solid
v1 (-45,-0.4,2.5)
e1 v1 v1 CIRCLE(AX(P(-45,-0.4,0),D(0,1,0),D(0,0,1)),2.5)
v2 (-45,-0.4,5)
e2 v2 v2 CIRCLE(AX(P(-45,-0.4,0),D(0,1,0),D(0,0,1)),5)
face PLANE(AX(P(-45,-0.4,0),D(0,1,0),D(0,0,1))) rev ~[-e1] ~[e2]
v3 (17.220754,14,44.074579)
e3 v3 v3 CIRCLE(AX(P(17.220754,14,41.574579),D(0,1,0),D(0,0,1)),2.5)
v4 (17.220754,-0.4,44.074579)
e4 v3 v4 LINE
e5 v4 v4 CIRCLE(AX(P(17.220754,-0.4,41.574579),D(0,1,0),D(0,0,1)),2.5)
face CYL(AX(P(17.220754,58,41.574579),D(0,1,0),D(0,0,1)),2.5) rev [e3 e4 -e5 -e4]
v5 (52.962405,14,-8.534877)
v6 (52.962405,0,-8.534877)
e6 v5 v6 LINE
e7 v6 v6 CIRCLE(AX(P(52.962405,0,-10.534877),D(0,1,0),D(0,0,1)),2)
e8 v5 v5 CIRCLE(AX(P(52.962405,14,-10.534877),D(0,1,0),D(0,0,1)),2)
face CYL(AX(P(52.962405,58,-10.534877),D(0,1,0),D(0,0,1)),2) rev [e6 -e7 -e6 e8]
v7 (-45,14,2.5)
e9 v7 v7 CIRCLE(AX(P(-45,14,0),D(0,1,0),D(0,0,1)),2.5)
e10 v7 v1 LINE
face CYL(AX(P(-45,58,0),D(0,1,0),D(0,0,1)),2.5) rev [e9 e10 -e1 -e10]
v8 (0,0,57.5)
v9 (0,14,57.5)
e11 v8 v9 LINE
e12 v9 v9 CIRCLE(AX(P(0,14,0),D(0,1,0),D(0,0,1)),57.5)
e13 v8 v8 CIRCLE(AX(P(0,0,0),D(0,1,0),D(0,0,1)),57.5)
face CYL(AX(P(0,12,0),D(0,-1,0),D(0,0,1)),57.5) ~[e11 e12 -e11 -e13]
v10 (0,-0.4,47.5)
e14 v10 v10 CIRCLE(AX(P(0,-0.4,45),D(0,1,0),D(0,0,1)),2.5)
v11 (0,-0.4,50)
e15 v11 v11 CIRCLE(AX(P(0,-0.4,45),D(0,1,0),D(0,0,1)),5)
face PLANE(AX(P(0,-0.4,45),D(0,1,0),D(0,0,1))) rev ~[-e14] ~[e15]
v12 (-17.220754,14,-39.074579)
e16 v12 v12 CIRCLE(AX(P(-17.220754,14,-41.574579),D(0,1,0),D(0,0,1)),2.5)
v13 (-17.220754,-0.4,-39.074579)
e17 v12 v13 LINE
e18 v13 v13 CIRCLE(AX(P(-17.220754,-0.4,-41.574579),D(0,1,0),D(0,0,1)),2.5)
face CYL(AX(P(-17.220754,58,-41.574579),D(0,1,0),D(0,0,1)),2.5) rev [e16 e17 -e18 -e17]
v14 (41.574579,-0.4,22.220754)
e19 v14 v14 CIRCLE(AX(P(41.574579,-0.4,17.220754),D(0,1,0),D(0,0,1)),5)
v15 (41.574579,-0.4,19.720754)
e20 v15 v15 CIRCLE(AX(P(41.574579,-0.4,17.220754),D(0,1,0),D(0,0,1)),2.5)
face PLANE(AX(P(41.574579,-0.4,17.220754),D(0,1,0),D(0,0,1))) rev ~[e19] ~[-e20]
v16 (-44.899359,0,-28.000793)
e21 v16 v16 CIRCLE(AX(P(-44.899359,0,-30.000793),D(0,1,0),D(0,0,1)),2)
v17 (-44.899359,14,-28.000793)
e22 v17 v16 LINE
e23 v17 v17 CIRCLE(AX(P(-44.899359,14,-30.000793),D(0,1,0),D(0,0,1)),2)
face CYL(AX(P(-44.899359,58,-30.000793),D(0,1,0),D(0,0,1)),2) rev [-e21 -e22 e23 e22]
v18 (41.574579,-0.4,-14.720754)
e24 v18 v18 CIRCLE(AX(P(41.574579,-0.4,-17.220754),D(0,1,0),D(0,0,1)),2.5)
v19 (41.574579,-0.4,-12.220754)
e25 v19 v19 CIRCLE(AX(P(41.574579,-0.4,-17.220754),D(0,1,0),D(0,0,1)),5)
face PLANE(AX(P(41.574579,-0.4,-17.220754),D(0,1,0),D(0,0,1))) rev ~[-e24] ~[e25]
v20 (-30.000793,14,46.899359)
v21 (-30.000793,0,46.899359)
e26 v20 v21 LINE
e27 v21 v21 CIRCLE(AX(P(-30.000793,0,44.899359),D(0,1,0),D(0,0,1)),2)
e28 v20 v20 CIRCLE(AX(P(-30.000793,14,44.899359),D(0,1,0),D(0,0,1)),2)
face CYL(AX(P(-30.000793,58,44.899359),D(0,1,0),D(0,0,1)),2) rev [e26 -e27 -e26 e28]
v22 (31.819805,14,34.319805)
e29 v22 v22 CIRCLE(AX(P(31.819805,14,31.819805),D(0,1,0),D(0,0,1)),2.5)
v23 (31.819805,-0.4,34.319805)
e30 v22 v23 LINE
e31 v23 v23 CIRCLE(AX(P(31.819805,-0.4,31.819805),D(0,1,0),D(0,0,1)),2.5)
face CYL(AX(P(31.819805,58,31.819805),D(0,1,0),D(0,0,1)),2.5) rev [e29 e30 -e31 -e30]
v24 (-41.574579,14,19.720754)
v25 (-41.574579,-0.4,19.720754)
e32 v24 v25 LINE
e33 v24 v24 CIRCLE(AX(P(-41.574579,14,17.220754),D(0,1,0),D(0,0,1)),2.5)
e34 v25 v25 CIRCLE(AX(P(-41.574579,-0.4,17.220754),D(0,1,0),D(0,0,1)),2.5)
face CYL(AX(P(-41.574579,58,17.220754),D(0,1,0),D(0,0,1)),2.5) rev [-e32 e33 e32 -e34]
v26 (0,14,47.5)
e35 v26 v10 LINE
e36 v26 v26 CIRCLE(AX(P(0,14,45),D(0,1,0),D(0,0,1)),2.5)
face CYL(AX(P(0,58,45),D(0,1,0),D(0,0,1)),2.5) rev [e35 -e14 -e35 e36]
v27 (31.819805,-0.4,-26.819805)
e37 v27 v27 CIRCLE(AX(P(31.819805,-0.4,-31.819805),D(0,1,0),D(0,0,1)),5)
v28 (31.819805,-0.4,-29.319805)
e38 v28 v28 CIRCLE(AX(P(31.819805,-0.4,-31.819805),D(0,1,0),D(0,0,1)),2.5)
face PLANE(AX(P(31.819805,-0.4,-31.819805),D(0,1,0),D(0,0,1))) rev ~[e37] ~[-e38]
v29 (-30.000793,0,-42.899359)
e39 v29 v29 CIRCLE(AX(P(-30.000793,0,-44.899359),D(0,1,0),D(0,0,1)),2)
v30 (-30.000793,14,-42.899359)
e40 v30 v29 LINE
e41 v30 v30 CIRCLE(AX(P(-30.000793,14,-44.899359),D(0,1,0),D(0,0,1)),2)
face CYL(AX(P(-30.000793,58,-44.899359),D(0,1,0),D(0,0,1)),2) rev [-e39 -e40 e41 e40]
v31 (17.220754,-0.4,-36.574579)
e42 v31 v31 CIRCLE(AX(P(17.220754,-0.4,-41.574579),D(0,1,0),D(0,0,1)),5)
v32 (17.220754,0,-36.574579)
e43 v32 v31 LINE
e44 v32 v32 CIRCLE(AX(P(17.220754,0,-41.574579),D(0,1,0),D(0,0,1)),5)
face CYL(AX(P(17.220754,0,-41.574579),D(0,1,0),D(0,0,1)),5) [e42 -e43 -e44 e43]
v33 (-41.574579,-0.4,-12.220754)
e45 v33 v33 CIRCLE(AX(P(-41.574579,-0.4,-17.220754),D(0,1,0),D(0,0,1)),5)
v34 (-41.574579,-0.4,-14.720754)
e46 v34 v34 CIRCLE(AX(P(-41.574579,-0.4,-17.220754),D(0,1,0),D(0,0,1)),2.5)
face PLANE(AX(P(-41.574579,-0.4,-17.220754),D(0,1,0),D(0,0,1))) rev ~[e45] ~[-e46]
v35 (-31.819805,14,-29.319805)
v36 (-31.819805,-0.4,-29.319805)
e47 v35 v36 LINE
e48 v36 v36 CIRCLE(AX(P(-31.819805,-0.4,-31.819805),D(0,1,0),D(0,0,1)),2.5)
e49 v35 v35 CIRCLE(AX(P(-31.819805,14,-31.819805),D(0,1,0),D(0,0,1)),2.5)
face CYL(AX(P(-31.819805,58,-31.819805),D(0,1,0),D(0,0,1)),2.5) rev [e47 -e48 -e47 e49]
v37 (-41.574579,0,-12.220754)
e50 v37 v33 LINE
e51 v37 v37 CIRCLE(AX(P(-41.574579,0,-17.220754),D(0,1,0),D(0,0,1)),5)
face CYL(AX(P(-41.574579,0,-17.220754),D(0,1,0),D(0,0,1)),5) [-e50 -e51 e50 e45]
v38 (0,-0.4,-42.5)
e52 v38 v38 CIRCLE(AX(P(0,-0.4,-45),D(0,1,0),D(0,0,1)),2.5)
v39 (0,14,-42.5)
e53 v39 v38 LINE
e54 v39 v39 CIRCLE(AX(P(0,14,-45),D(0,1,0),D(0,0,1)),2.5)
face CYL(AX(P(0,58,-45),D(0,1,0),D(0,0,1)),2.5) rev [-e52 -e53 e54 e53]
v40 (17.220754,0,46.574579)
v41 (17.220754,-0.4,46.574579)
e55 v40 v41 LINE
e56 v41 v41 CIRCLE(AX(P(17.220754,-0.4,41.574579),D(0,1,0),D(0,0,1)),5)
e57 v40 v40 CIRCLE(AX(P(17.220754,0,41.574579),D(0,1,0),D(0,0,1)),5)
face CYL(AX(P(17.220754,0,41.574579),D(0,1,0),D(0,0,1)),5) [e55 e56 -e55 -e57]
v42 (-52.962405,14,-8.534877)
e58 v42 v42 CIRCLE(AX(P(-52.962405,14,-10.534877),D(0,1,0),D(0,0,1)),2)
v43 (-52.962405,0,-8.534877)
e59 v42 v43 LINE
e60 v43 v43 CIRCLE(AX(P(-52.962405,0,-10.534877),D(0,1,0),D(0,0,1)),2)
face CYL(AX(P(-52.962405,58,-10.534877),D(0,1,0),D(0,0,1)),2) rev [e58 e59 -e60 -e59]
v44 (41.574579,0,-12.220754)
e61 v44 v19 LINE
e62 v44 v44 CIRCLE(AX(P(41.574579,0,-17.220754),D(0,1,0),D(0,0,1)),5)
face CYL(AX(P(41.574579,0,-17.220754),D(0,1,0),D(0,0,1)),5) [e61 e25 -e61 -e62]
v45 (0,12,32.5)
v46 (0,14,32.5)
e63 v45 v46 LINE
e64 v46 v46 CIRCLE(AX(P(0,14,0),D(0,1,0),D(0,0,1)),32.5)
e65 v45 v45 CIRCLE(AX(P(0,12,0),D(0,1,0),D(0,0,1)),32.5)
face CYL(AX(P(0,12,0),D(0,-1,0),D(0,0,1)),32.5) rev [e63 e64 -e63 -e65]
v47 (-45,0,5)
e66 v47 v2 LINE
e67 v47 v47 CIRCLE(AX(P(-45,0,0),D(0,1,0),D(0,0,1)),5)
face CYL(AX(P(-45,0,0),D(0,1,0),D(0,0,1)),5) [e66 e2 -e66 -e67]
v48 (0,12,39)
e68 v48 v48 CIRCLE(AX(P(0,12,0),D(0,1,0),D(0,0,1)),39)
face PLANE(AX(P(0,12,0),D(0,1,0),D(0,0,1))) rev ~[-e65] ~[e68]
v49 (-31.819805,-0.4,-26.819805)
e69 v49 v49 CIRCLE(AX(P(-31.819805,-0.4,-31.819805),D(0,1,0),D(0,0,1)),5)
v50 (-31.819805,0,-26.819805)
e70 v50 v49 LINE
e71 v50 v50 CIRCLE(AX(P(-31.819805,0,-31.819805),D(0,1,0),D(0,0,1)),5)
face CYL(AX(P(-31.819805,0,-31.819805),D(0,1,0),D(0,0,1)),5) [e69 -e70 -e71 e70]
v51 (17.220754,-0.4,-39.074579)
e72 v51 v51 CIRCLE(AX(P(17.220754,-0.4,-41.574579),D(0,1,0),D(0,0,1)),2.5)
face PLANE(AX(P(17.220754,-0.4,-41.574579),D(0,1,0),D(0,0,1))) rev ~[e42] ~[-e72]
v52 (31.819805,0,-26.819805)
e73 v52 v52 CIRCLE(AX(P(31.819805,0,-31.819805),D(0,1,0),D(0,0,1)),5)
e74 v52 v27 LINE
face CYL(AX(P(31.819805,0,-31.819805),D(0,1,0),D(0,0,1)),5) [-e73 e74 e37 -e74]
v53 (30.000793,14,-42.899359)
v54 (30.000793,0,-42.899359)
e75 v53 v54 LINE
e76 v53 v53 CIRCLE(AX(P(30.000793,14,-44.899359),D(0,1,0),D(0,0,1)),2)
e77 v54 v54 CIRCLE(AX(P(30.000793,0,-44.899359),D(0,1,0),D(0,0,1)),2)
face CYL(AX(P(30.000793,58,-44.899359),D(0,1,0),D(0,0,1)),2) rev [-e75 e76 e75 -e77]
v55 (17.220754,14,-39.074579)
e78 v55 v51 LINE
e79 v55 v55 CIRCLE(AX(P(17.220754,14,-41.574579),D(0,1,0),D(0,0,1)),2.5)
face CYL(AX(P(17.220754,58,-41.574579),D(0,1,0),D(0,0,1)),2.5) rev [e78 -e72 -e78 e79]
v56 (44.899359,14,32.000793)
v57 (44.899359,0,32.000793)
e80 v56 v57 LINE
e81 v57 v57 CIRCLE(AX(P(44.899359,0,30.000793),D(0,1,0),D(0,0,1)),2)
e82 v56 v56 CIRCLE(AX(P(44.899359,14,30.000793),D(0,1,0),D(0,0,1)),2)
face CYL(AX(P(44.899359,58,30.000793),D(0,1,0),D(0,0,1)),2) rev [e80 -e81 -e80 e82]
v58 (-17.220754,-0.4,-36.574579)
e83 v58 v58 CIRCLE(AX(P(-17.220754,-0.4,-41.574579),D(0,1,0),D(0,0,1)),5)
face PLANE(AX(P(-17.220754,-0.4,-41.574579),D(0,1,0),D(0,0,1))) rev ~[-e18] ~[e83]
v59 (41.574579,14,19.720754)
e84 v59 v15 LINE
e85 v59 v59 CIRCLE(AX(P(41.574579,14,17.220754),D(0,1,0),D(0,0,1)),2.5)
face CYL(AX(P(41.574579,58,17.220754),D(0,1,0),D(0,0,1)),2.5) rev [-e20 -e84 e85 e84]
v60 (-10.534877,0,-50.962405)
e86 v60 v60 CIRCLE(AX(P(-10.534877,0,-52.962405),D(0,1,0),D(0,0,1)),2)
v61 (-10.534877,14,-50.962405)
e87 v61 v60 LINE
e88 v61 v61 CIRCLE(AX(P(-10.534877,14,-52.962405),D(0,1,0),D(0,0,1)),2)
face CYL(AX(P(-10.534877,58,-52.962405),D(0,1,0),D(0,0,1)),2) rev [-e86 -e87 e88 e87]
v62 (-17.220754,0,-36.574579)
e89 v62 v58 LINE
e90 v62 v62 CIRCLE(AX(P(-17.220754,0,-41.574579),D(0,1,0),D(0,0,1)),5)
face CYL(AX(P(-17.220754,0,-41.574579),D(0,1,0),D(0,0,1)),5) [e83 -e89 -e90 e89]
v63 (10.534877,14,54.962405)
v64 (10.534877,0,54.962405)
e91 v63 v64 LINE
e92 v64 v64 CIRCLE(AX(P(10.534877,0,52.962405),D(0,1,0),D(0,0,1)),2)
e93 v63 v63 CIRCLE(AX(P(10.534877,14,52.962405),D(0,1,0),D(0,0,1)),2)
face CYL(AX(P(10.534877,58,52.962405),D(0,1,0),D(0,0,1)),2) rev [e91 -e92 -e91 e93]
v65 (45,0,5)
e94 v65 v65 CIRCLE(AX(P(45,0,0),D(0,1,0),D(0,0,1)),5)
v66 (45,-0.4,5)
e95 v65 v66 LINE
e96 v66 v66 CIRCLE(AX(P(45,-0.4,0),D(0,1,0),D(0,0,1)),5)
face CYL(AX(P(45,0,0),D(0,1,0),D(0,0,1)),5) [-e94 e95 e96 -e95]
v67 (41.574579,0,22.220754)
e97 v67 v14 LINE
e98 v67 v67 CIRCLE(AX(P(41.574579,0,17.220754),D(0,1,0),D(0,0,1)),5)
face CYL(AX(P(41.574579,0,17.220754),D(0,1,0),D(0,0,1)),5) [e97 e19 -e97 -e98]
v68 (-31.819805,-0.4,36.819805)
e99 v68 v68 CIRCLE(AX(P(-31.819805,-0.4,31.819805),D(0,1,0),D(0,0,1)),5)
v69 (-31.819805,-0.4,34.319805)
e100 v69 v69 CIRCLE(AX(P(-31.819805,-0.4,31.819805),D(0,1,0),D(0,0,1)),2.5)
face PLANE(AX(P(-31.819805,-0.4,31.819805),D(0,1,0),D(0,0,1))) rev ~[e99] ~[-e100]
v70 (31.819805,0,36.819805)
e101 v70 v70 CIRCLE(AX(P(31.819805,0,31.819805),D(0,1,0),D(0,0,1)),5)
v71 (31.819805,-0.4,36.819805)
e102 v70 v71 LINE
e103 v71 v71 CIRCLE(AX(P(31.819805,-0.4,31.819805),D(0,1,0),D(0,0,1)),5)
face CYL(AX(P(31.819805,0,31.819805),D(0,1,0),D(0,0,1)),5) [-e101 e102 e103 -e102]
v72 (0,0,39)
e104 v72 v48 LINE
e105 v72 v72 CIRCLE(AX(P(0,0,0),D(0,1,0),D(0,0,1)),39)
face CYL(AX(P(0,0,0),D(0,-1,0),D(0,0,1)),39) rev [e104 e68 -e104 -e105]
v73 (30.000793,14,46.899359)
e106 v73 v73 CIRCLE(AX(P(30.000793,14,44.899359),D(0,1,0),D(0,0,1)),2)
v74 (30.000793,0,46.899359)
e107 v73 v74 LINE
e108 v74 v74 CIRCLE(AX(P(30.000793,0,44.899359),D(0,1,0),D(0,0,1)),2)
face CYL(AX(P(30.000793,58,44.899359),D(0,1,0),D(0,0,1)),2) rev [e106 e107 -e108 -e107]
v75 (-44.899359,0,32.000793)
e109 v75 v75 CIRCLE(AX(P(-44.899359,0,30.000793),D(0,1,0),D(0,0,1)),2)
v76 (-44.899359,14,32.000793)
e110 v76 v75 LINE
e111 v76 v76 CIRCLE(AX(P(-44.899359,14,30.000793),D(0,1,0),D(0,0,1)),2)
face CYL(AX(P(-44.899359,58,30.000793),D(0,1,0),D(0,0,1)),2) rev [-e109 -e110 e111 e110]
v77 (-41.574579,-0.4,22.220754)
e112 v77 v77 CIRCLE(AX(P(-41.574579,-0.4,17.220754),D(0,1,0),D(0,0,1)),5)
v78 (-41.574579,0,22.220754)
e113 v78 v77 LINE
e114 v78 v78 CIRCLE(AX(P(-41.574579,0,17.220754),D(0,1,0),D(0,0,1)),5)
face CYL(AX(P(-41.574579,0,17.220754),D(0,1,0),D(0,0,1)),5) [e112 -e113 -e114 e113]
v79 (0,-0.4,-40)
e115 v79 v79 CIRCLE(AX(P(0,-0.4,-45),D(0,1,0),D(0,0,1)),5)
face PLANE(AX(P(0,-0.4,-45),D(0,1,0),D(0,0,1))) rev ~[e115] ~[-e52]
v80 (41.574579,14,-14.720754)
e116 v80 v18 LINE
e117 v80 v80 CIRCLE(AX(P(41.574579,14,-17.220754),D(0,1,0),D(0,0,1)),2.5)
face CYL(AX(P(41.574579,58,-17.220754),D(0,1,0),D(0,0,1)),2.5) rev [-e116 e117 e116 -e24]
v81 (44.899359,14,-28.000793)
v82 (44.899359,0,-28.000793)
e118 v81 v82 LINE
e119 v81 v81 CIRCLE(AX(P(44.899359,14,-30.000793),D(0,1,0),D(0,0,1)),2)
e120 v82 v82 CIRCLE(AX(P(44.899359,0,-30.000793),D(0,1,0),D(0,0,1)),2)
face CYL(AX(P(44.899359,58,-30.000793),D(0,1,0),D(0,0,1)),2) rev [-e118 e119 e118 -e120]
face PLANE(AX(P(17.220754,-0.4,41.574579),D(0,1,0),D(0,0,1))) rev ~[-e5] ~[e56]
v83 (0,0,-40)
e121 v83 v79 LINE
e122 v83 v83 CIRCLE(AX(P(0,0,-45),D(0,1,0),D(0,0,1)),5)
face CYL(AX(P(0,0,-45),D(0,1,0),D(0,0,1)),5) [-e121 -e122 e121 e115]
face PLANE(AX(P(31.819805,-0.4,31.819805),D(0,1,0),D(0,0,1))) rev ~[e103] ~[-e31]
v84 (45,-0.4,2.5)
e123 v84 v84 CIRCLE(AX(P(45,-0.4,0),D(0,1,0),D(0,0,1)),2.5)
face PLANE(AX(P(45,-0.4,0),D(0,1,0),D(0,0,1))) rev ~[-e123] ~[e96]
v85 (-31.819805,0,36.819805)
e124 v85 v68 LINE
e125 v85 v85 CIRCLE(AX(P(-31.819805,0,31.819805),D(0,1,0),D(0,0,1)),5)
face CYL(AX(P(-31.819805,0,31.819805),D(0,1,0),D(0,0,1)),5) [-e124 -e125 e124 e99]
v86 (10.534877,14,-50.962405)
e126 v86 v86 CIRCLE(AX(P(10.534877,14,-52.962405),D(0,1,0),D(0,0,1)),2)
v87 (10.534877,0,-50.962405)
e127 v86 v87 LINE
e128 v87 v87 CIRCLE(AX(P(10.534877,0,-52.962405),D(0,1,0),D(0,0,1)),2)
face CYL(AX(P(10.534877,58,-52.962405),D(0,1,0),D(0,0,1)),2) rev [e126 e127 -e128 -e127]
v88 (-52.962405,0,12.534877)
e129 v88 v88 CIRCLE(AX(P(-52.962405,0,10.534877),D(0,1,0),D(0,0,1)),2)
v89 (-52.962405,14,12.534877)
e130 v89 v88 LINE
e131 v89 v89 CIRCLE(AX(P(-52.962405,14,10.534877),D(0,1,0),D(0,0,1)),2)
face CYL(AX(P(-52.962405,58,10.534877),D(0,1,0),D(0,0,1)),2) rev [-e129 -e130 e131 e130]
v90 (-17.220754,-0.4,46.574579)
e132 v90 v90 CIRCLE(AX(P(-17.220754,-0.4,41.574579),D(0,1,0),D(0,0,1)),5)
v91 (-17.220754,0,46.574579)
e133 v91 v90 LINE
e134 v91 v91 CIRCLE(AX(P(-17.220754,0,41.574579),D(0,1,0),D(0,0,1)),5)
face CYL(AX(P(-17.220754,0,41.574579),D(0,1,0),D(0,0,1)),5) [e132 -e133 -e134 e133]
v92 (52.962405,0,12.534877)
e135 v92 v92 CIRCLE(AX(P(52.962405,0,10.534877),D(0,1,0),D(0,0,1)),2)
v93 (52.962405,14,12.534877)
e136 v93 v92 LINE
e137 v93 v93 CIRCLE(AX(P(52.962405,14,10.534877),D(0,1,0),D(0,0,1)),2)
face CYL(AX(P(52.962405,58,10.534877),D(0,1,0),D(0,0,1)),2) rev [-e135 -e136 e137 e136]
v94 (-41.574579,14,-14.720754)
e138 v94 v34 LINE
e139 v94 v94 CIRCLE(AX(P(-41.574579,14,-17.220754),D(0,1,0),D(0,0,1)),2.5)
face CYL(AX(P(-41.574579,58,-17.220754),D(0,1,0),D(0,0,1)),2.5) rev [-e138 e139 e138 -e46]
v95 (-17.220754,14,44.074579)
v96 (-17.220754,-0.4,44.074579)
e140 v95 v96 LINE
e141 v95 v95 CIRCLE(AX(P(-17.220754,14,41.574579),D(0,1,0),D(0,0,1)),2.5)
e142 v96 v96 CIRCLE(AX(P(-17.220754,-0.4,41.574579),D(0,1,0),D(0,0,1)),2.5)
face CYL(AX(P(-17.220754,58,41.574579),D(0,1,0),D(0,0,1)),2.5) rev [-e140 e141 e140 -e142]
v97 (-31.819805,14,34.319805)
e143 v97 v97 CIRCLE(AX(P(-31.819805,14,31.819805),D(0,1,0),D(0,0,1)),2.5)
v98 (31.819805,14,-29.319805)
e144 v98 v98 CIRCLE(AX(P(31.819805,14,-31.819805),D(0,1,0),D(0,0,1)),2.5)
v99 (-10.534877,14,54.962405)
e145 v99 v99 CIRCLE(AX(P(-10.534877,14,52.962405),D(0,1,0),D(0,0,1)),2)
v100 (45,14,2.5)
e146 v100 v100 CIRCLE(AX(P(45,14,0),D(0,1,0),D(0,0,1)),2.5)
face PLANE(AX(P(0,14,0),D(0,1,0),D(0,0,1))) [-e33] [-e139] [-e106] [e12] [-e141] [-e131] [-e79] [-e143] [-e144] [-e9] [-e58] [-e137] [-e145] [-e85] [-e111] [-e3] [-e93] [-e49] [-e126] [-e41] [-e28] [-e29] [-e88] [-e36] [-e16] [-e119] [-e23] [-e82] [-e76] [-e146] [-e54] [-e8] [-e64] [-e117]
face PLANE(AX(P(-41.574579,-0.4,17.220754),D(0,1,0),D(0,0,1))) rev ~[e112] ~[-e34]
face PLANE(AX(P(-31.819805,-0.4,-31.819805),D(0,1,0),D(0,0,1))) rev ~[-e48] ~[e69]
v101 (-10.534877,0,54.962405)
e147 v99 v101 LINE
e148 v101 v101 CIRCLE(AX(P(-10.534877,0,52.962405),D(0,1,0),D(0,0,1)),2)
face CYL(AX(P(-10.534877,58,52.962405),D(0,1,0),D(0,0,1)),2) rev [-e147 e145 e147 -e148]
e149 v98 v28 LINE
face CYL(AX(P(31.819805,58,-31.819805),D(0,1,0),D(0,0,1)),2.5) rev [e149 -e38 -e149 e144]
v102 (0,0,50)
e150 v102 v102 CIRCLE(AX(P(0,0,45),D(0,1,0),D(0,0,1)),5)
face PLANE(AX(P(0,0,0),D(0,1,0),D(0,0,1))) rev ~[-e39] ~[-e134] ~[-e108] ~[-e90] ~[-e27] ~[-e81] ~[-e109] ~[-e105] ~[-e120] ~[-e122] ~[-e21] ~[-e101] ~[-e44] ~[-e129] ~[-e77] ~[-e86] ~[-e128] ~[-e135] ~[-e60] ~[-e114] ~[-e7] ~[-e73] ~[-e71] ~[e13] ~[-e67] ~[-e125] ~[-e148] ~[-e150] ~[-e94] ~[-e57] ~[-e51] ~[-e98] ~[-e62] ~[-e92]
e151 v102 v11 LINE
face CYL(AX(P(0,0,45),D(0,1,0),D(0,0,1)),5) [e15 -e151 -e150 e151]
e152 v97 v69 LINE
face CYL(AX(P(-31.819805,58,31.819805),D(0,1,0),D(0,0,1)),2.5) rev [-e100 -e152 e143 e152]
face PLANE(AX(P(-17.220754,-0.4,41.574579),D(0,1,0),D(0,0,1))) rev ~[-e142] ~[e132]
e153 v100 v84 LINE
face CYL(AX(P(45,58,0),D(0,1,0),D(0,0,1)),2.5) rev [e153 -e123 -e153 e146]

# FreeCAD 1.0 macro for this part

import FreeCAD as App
import Part
import Sketcher
Q = App.Units.Quantity

doc = App.newDocument("Part")
params = doc.addObject("Spreadsheet::Sheet", "Params")
for row, (alias, value) in enumerate([
    ("sketch1_diameter", "115 mm"),
    ("sketch1_diameter2", "4 mm"),
    ("sketch1_diameter3", "78 mm"),
    ("pad1_length", "12 mm"),
    ("sketch2_diameter", "5 mm"),
    ("pocket1_length", "10 mm"),
    ("sketch3_diameter", "10 mm"),
    ("sketch3_diameter2", "5 mm"),
    ("pad2_length", "0.4 mm"),
    ("sketch4_diameter", "115 mm"),
    ("sketch4_diameter2", "65 mm"),
    ("pad3_length", "2 mm"),
    ("sketch5_diameter", "5 mm"),
    ("sketch5_diameter2", "4 mm"),
    ("pocket2_length", "58 mm"),
], start=1):
    params.set(f"A{row}", alias)
    params.set(f"B{row}", "=" + value)
    params.setAlias(f"B{row}", alias)

body = doc.addObject("PartDesign::Body", "Body")

# Sketch on XZ plane
sketch1 = body.newObject("Sketcher::SketchObject", "Sketch")
sketch1.AttachmentSupport = (doc.getObject("XZ_Plane"), [""])
sketch1.MapMode = "FlatFace"
sketch1.addGeometry([
    Part.Circle(App.Vector(0, 0, 0), App.Vector(0, 0, 1), 57.5),  # 0
    Part.Circle(App.Vector(-44.899359, -30.000793, 0), App.Vector(0, 0, 1), 2),  # 1
    Part.Circle(App.Vector(-30.000793, -44.899359, 0), App.Vector(0, 0, 1), 2),  # 2
    Part.Circle(App.Vector(-52.962405, -10.534877, 0), App.Vector(0, 0, 1), 2),  # 3
    Part.Circle(App.Vector(-10.534877, -52.962405, 0), App.Vector(0, 0, 1), 2),  # 4
    Part.Circle(App.Vector(0, 0, 0), App.Vector(0, 0, 1), 39),  # 5
    Part.Circle(App.Vector(-52.962405, 10.534877, 0), App.Vector(0, 0, 1), 2),  # 6
    Part.Circle(App.Vector(-44.899359, 30.000793, 0), App.Vector(0, 0, 1), 2),  # 7
    Part.Circle(App.Vector(-30.000793, 44.899359, 0), App.Vector(0, 0, 1), 2),  # 8
    Part.Circle(App.Vector(-10.534877, 52.962405, 0), App.Vector(0, 0, 1), 2),  # 9
    Part.Circle(App.Vector(10.534877, -52.962405, 0), App.Vector(0, 0, 1), 2),  # 10
    Part.Circle(App.Vector(30.000793, -44.899359, 0), App.Vector(0, 0, 1), 2),  # 11
    Part.Circle(App.Vector(44.899359, -30.000793, 0), App.Vector(0, 0, 1), 2),  # 12
    Part.Circle(App.Vector(52.962405, -10.534877, 0), App.Vector(0, 0, 1), 2),  # 13
    Part.Circle(App.Vector(10.534877, 52.962405, 0), App.Vector(0, 0, 1), 2),  # 14
    Part.Circle(App.Vector(52.962405, 10.534877, 0), App.Vector(0, 0, 1), 2),  # 15
    Part.Circle(App.Vector(30.000793, 44.899359, 0), App.Vector(0, 0, 1), 2),  # 16
    Part.Circle(App.Vector(44.899359, 30.000793, 0), App.Vector(0, 0, 1), 2),  # 17
], False)
sketch1.addConstraint([
    Sketcher.Constraint("Coincident", 0, 3, -1, 1),
    Sketcher.Constraint("Coincident", 5, 3, -1, 1),
    Sketcher.Constraint("Equal", 1, 2),
    Sketcher.Constraint("Equal", 2, 3),
    Sketcher.Constraint("Equal", 3, 4),
    Sketcher.Constraint("Equal", 4, 6),
    Sketcher.Constraint("Equal", 6, 7),
    Sketcher.Constraint("Equal", 7, 8),
    Sketcher.Constraint("Equal", 8, 9),
    Sketcher.Constraint("Equal", 9, 10),
    Sketcher.Constraint("Equal", 10, 11),
    Sketcher.Constraint("Equal", 11, 12),
    Sketcher.Constraint("Equal", 12, 13),
    Sketcher.Constraint("Equal", 13, 14),
    Sketcher.Constraint("Equal", 14, 15),
    Sketcher.Constraint("Equal", 15, 16),
    Sketcher.Constraint("Equal", 16, 17),
    Sketcher.Constraint("Symmetric", 9, 3, 10, 3, -1, 1),
    Sketcher.Constraint("Symmetric", 8, 3, 11, 3, -1, 1),
    Sketcher.Constraint("Symmetric", 7, 3, 12, 3, -1, 1),
    Sketcher.Constraint("Symmetric", 6, 3, 13, 3, -1, 1),
    Sketcher.Constraint("Symmetric", 4, 3, 14, 3, -1, 1),
    Sketcher.Constraint("Symmetric", 3, 3, 15, 3, -1, 1),
    Sketcher.Constraint("Symmetric", 2, 3, 16, 3, -1, 1),
    Sketcher.Constraint("Symmetric", 1, 3, 17, 3, -1, 1),
    Sketcher.Constraint("Symmetric", 4, 3, 10, 3, -2),
    Sketcher.Constraint("Symmetric", 2, 3, 11, 3, -2),
    Sketcher.Constraint("Symmetric", 1, 3, 12, 3, -2),
    Sketcher.Constraint("Symmetric", 3, 3, 13, 3, -2),
    Sketcher.Constraint("Diameter", 0, Q("115 mm")),
    Sketcher.Constraint("Diameter", 1, Q("4 mm")),
    Sketcher.Constraint("Diameter", 5, Q("78 mm")),
    Sketcher.Constraint("DistanceX", 1, 3, -1, 1, Q("44.899359 mm")),
    Sketcher.Constraint("DistanceY", 2, 3, -1, 1, Q("44.899359 mm")),
    Sketcher.Constraint("DistanceY", 2, 3, 3, 3, Q("34.364482 mm")),
    Sketcher.Constraint("DistanceX", 1, 3, 4, 3, Q("34.364482 mm")),
    Sketcher.Constraint("DistanceY", 1, 3, 6, 3, Q("40.53567 mm")),
    Sketcher.Constraint("DistanceX", 2, 3, 10, 3, Q("40.53567 mm")),
    Sketcher.Constraint("DistanceX", 3, 3, -1, 1, Q("52.962405 mm")),
    Sketcher.Constraint("DistanceY", 4, 3, -1, 1, Q("52.962405 mm")),
])
sketch1.setExpression("Constraints[29]", "Params.sketch1_diameter")
sketch1.setExpression("Constraints[30]", "Params.sketch1_diameter2")
sketch1.setExpression("Constraints[31]", "Params.sketch1_diameter3")
pad1 = body.newObject("PartDesign::Pad", "Pad")
pad1.Profile = sketch1
pad1.setExpression("Length", "Params.pad1_length")
pad1.Reversed = True

# Sketch on XZ plane
sketch2 = body.newObject("Sketcher::SketchObject", "Sketch001")
sketch2.AttachmentSupport = (doc.getObject("XZ_Plane"), [""])
sketch2.MapMode = "FlatFace"
sketch2.AttachmentOffset = App.Placement(App.Vector(0, 0, -12), App.Rotation())
sketch2.addGeometry([
    Part.Circle(App.Vector(0, -45, 0), App.Vector(0, 0, 1), 2.5),  # 0
    Part.Circle(App.Vector(17.220754, -41.574579, 0), App.Vector(0, 0, 1), 2.5),  # 1
    Part.Circle(App.Vector(31.819805, -31.819805, 0), App.Vector(0, 0, 1), 2.5),  # 2
    Part.Circle(App.Vector(41.574579, -17.220754, 0), App.Vector(0, 0, 1), 2.5),  # 3
    Part.Circle(App.Vector(45, 0, 0), App.Vector(0, 0, 1), 2.5),  # 4
    Part.Circle(App.Vector(41.574579, 17.220754, 0), App.Vector(0, 0, 1), 2.5),  # 5
    Part.Circle(App.Vector(31.819805, 31.819805, 0), App.Vector(0, 0, 1), 2.5),  # 6
    Part.Circle(App.Vector(17.220754, 41.574579, 0), App.Vector(0, 0, 1), 2.5),  # 7
    Part.Circle(App.Vector(0, 45, 0), App.Vector(0, 0, 1), 2.5),  # 8
    Part.Circle(App.Vector(-17.220754, 41.574579, 0), App.Vector(0, 0, 1), 2.5),  # 9
    Part.Circle(App.Vector(-31.819805, 31.819805, 0), App.Vector(0, 0, 1), 2.5),  # 10
    Part.Circle(App.Vector(-41.574579, 17.220754, 0), App.Vector(0, 0, 1), 2.5),  # 11
    Part.Circle(App.Vector(-45, 0, 0), App.Vector(0, 0, 1), 2.5),  # 12
    Part.Circle(App.Vector(-41.574579, -17.220754, 0), App.Vector(0, 0, 1), 2.5),  # 13
    Part.Circle(App.Vector(-31.819805, -31.819805, 0), App.Vector(0, 0, 1), 2.5),  # 14
    Part.Circle(App.Vector(-17.220754, -41.574579, 0), App.Vector(0, 0, 1), 2.5),  # 15
], False)
sketch2.addConstraint([
    Sketcher.Constraint("Equal", 0, 1),
    Sketcher.Constraint("Equal", 1, 2),
    Sketcher.Constraint("Equal", 2, 3),
    Sketcher.Constraint("Equal", 3, 4),
    Sketcher.Constraint("Equal", 4, 5),
    Sketcher.Constraint("Equal", 5, 6),
    Sketcher.Constraint("Equal", 6, 7),
    Sketcher.Constraint("Equal", 7, 8),
    Sketcher.Constraint("Equal", 8, 9),
    Sketcher.Constraint("Equal", 9, 10),
    Sketcher.Constraint("Equal", 10, 11),
    Sketcher.Constraint("Equal", 11, 12),
    Sketcher.Constraint("Equal", 12, 13),
    Sketcher.Constraint("Equal", 13, 14),
    Sketcher.Constraint("Equal", 14, 15),
    Sketcher.Constraint("Symmetric", 0, 3, 8, 3, -1, 1),
    Sketcher.Constraint("Symmetric", 1, 3, 9, 3, -1, 1),
    Sketcher.Constraint("Symmetric", 2, 3, 10, 3, -1, 1),
    Sketcher.Constraint("Symmetric", 3, 3, 11, 3, -1, 1),
    Sketcher.Constraint("Symmetric", 4, 3, 12, 3, -1, 1),
    Sketcher.Constraint("Symmetric", 5, 3, 13, 3, -1, 1),
    Sketcher.Constraint("Symmetric", 6, 3, 14, 3, -1, 1),
    Sketcher.Constraint("Symmetric", 7, 3, 15, 3, -1, 1),
    Sketcher.Constraint("Symmetric", 7, 3, 9, 3, -2),
    Sketcher.Constraint("Symmetric", 6, 3, 10, 3, -2),
    Sketcher.Constraint("Symmetric", 5, 3, 11, 3, -2),
    Sketcher.Constraint("PointOnObject", 0, 3, -2),
    Sketcher.Constraint("PointOnObject", 4, 3, -1),
    Sketcher.Constraint("Diameter", 0, Q("5 mm")),
    Sketcher.Constraint("DistanceY", 0, 3, -1, 1, Q("45 mm")),
    Sketcher.Constraint("DistanceX", -1, 1, 4, 3, Q("45 mm")),
    Sketcher.Constraint("DistanceY", 1, 3, -1, 1, Q("41.574579 mm")),
    Sketcher.Constraint("DistanceX", -1, 1, 3, 3, Q("41.574579 mm")),
    Sketcher.Constraint("DistanceX", 1, 3, 2, 3, Q("14.599051 mm")),
    Sketcher.Constraint("DistanceY", 2, 3, 3, 3, Q("14.599051 mm")),
    Sketcher.Constraint("DistanceY", 3, 3, 5, 3, Q("34.441509 mm")),
    Sketcher.Constraint("DistanceX", 9, 3, 7, 3, Q("34.441509 mm")),
])
sketch2.setExpression("Constraints[28]", "Params.sketch2_diameter")
pocket1 = body.newObject("PartDesign::Pocket", "Pocket")
pocket1.Profile = sketch2
pocket1.setExpression("Length", "Params.pocket1_length")
pocket1.Reversed = True

# Sketch on XZ plane
sketch3 = body.newObject("Sketcher::SketchObject", "Sketch002")
sketch3.AttachmentSupport = (doc.getObject("XZ_Plane"), [""])
sketch3.MapMode = "FlatFace"
sketch3.addGeometry([
    Part.Circle(App.Vector(0, -45, 0), App.Vector(0, 0, 1), 5),  # 0
    Part.Circle(App.Vector(0, -45, 0), App.Vector(0, 0, 1), 2.5),  # 1
    Part.Circle(App.Vector(17.220754, -41.574579, 0), App.Vector(0, 0, 1), 5),  # 2
    Part.Circle(App.Vector(17.220754, -41.574579, 0), App.Vector(0, 0, 1), 2.5),  # 3
    Part.Circle(App.Vector(31.819805, -31.819805, 0), App.Vector(0, 0, 1), 5),  # 4
    Part.Circle(App.Vector(31.819805, -31.819805, 0), App.Vector(0, 0, 1), 2.5),  # 5
    Part.Circle(App.Vector(41.574579, -17.220754, 0), App.Vector(0, 0, 1), 5),  # 6
    Part.Circle(App.Vector(41.574579, -17.220754, 0), App.Vector(0, 0, 1), 2.5),  # 7
    Part.Circle(App.Vector(45, 0, 0), App.Vector(0, 0, 1), 5),  # 8
    Part.Circle(App.Vector(45, 0, 0), App.Vector(0, 0, 1), 2.5),  # 9
    Part.Circle(App.Vector(41.574579, 17.220754, 0), App.Vector(0, 0, 1), 5),  # 10
    Part.Circle(App.Vector(41.574579, 17.220754, 0), App.Vector(0, 0, 1), 2.5),  # 11
    Part.Circle(App.Vector(31.819805, 31.819805, 0), App.Vector(0, 0, 1), 5),  # 12
    Part.Circle(App.Vector(31.819805, 31.819805, 0), App.Vector(0, 0, 1), 2.5),  # 13
    Part.Circle(App.Vector(17.220754, 41.574579, 0), App.Vector(0, 0, 1), 5),  # 14
    Part.Circle(App.Vector(17.220754, 41.574579, 0), App.Vector(0, 0, 1), 2.5),  # 15
    Part.Circle(App.Vector(0, 45, 0), App.Vector(0, 0, 1), 5),  # 16
    Part.Circle(App.Vector(0, 45, 0), App.Vector(0, 0, 1), 2.5),  # 17
    Part.Circle(App.Vector(-17.220754, 41.574579, 0), App.Vector(0, 0, 1), 5),  # 18
    Part.Circle(App.Vector(-17.220754, 41.574579, 0), App.Vector(0, 0, 1), 2.5),  # 19
    Part.Circle(App.Vector(-31.819805, 31.819805, 0), App.Vector(0, 0, 1), 5),  # 20
    Part.Circle(App.Vector(-31.819805, 31.819805, 0), App.Vector(0, 0, 1), 2.5),  # 21
    Part.Circle(App.Vector(-41.574579, 17.220754, 0), App.Vector(0, 0, 1), 5),  # 22
    Part.Circle(App.Vector(-41.574579, 17.220754, 0), App.Vector(0, 0, 1), 2.5),  # 23
    Part.Circle(App.Vector(-45, 0, 0), App.Vector(0, 0, 1), 5),  # 24
    Part.Circle(App.Vector(-45, 0, 0), App.Vector(0, 0, 1), 2.5),  # 25
    Part.Circle(App.Vector(-41.574579, -17.220754, 0), App.Vector(0, 0, 1), 5),  # 26
    Part.Circle(App.Vector(-41.574579, -17.220754, 0), App.Vector(0, 0, 1), 2.5),  # 27
    Part.Circle(App.Vector(-31.819805, -31.819805, 0), App.Vector(0, 0, 1), 5),  # 28
    Part.Circle(App.Vector(-31.819805, -31.819805, 0), App.Vector(0, 0, 1), 2.5),  # 29
    Part.Circle(App.Vector(-17.220754, -41.574579, 0), App.Vector(0, 0, 1), 5),  # 30
    Part.Circle(App.Vector(-17.220754, -41.574579, 0), App.Vector(0, 0, 1), 2.5),  # 31
], False)
sketch3.addConstraint([
    Sketcher.Constraint("Coincident", 1, 3, 0, 3),
    Sketcher.Constraint("Coincident", 3, 3, 2, 3),
    Sketcher.Constraint("Coincident", 5, 3, 4, 3),
    Sketcher.Constraint("Coincident", 7, 3, 6, 3),
    Sketcher.Constraint("Coincident", 9, 3, 8, 3),
    Sketcher.Constraint("Coincident", 11, 3, 10, 3),
    Sketcher.Constraint("Coincident", 13, 3, 12, 3),
    Sketcher.Constraint("Coincident", 15, 3, 14, 3),
    Sketcher.Constraint("Coincident", 17, 3, 16, 3),
    Sketcher.Constraint("Coincident", 19, 3, 18, 3),
    Sketcher.Constraint("Coincident", 21, 3, 20, 3),
    Sketcher.Constraint("Coincident", 23, 3, 22, 3),
    Sketcher.Constraint("Coincident", 25, 3, 24, 3),
    Sketcher.Constraint("Coincident", 27, 3, 26, 3),
    Sketcher.Constraint("Coincident", 29, 3, 28, 3),
    Sketcher.Constraint("Coincident", 31, 3, 30, 3),
    Sketcher.Constraint("Equal", 0, 2),
    Sketcher.Constraint("Equal", 1, 3),
    Sketcher.Constraint("Equal", 2, 4),
    Sketcher.Constraint("Equal", 3, 5),
    Sketcher.Constraint("Equal", 4, 6),
    Sketcher.Constraint("Equal", 5, 7),
    Sketcher.Constraint("Equal", 6, 8),
    Sketcher.Constraint("Equal", 7, 9),
    Sketcher.Constraint("Equal", 8, 10),
    Sketcher.Constraint("Equal", 9, 11),
    Sketcher.Constraint("Equal", 10, 12),
    Sketcher.Constraint("Equal", 11, 13),
    Sketcher.Constraint("Equal", 12, 14),
    Sketcher.Constraint("Equal", 13, 15),
    Sketcher.Constraint("Equal", 14, 16),
    Sketcher.Constraint("Equal", 15, 17),
    Sketcher.Constraint("Equal", 16, 18),
    Sketcher.Constraint("Equal", 17, 19),
    Sketcher.Constraint("Equal", 18, 20),
    Sketcher.Constraint("Equal", 19, 21),
    Sketcher.Constraint("Equal", 20, 22),
    Sketcher.Constraint("Equal", 21, 23),
    Sketcher.Constraint("Equal", 22, 24),
    Sketcher.Constraint("Equal", 23, 25),
    Sketcher.Constraint("Equal", 24, 26),
    Sketcher.Constraint("Equal", 25, 27),
    Sketcher.Constraint("Equal", 26, 28),
    Sketcher.Constraint("Equal", 27, 29),
    Sketcher.Constraint("Equal", 28, 30),
    Sketcher.Constraint("Equal", 29, 31),
    Sketcher.Constraint("Symmetric", 0, 3, 16, 3, -1, 1),
    Sketcher.Constraint("Symmetric", 2, 3, 18, 3, -1, 1),
    Sketcher.Constraint("Symmetric", 4, 3, 20, 3, -1, 1),
    Sketcher.Constraint("Symmetric", 6, 3, 22, 3, -1, 1),
    Sketcher.Constraint("Symmetric", 8, 3, 24, 3, -1, 1),
    Sketcher.Constraint("Symmetric", 10, 3, 26, 3, -1, 1),
    Sketcher.Constraint("Symmetric", 12, 3, 28, 3, -1, 1),
    Sketcher.Constraint("Symmetric", 14, 3, 30, 3, -1, 1),
    Sketcher.Constraint("Symmetric", 14, 3, 18, 3, -2),
    Sketcher.Constraint("Symmetric", 12, 3, 20, 3, -2),
    Sketcher.Constraint("Symmetric", 10, 3, 22, 3, -2),
    Sketcher.Constraint("PointOnObject", 0, 3, -2),
    Sketcher.Constraint("PointOnObject", 8, 3, -1),
    Sketcher.Constraint("Diameter", 0, Q("10 mm")),
    Sketcher.Constraint("Diameter", 1, Q("5 mm")),
    Sketcher.Constraint("DistanceY", 0, 3, -1, 1, Q("45 mm")),
    Sketcher.Constraint("DistanceX", -1, 1, 8, 3, Q("45 mm")),
    Sketcher.Constraint("DistanceY", 2, 3, -1, 1, Q("41.574579 mm")),
    Sketcher.Constraint("DistanceX", -1, 1, 6, 3, Q("41.574579 mm")),
    Sketcher.Constraint("DistanceX", 2, 3, 4, 3, Q("14.599051 mm")),
    Sketcher.Constraint("DistanceY", 4, 3, 6, 3, Q("14.599051 mm")),
    Sketcher.Constraint("DistanceY", 6, 3, 10, 3, Q("34.441509 mm")),
    Sketcher.Constraint("DistanceX", 18, 3, 14, 3, Q("34.441509 mm")),
])
sketch3.setExpression("Constraints[59]", "Params.sketch3_diameter")
sketch3.setExpression("Constraints[60]", "Params.sketch3_diameter2")
pad2 = body.newObject("PartDesign::Pad", "Pad001")
pad2.Profile = sketch3
pad2.setExpression("Length", "Params.pad2_length")

# Sketch on XZ plane
sketch4 = body.newObject("Sketcher::SketchObject", "Sketch003")
sketch4.AttachmentSupport = (doc.getObject("XZ_Plane"), [""])
sketch4.MapMode = "FlatFace"
sketch4.AttachmentOffset = App.Placement(App.Vector(0, 0, -12), App.Rotation())
sketch4.addGeometry([
    Part.Circle(App.Vector(0, 0, 0), App.Vector(0, 0, 1), 57.5),
    Part.Circle(App.Vector(0, 0, 0), App.Vector(0, 0, 1), 32.5),
], False)
sketch4.addConstraint([
    Sketcher.Constraint("Coincident", 0, 3, -1, 1),
    Sketcher.Constraint("Coincident", 1, 3, -1, 1),
    Sketcher.Constraint("Diameter", 0, Q("115 mm")),
    Sketcher.Constraint("Diameter", 1, Q("65 mm")),
])
sketch4.setExpression("Constraints[2]", "Params.sketch4_diameter")
sketch4.setExpression("Constraints[3]", "Params.sketch4_diameter2")
pad3 = body.newObject("PartDesign::Pad", "Pad002")
pad3.Profile = sketch4
pad3.setExpression("Length", "Params.pad3_length")
pad3.Reversed = True

# Sketch on XZ plane
sketch5 = body.newObject("Sketcher::SketchObject", "Sketch004")
sketch5.AttachmentSupport = (doc.getObject("XZ_Plane"), [""])
sketch5.MapMode = "FlatFace"
sketch5.AttachmentOffset = App.Placement(App.Vector(0, 0, -58), App.Rotation())
sketch5.addGeometry([
    Part.Circle(App.Vector(0, 45, 0), App.Vector(0, 0, 1), 2.5),  # 0
    Part.Circle(App.Vector(17.220754, 41.574579, 0), App.Vector(0, 0, 1), 2.5),  # 1
    Part.Circle(App.Vector(31.819805, 31.819805, 0), App.Vector(0, 0, 1), 2.5),  # 2
    Part.Circle(App.Vector(41.574579, 17.220754, 0), App.Vector(0, 0, 1), 2.5),  # 3
    Part.Circle(App.Vector(45, 0, 0), App.Vector(0, 0, 1), 2.5),  # 4
    Part.Circle(App.Vector(41.574579, -17.220754, 0), App.Vector(0, 0, 1), 2.5),  # 5
    Part.Circle(App.Vector(31.819805, -31.819805, 0), App.Vector(0, 0, 1), 2.5),  # 6
    Part.Circle(App.Vector(17.220754, -41.574579, 0), App.Vector(0, 0, 1), 2.5),  # 7
    Part.Circle(App.Vector(0, -45, 0), App.Vector(0, 0, 1), 2.5),  # 8
    Part.Circle(App.Vector(-17.220754, -41.574579, 0), App.Vector(0, 0, 1), 2.5),  # 9
    Part.Circle(App.Vector(-31.819805, -31.819805, 0), App.Vector(0, 0, 1), 2.5),  # 10
    Part.Circle(App.Vector(-41.574579, -17.220754, 0), App.Vector(0, 0, 1), 2.5),  # 11
    Part.Circle(App.Vector(-45, 0, 0), App.Vector(0, 0, 1), 2.5),  # 12
    Part.Circle(App.Vector(-41.574579, 17.220754, 0), App.Vector(0, 0, 1), 2.5),  # 13
    Part.Circle(App.Vector(-31.819805, 31.819805, 0), App.Vector(0, 0, 1), 2.5),  # 14
    Part.Circle(App.Vector(-17.220754, 41.574579, 0), App.Vector(0, 0, 1), 2.5),  # 15
    Part.Circle(App.Vector(30.000793, 44.899359, 0), App.Vector(0, 0, 1), 2),  # 16
    Part.Circle(App.Vector(44.899359, 30.000793, 0), App.Vector(0, 0, 1), 2),  # 17
    Part.Circle(App.Vector(52.962405, 10.534877, 0), App.Vector(0, 0, 1), 2),  # 18
    Part.Circle(App.Vector(52.962405, -10.534877, 0), App.Vector(0, 0, 1), 2),  # 19
    Part.Circle(App.Vector(44.899359, -30.000793, 0), App.Vector(0, 0, 1), 2),  # 20
    Part.Circle(App.Vector(30.000793, -44.899359, 0), App.Vector(0, 0, 1), 2),  # 21
    Part.Circle(App.Vector(10.534877, -52.962405, 0), App.Vector(0, 0, 1), 2),  # 22
    Part.Circle(App.Vector(-10.534877, -52.962405, 0), App.Vector(0, 0, 1), 2),  # 23
    Part.Circle(App.Vector(-30.000793, -44.899359, 0), App.Vector(0, 0, 1), 2),  # 24
    Part.Circle(App.Vector(-44.899359, -30.000793, 0), App.Vector(0, 0, 1), 2),  # 25
    Part.Circle(App.Vector(-52.962405, -10.534877, 0), App.Vector(0, 0, 1), 2),  # 26
    Part.Circle(App.Vector(-52.962405, 10.534877, 0), App.Vector(0, 0, 1), 2),  # 27
    Part.Circle(App.Vector(-44.899359, 30.000793, 0), App.Vector(0, 0, 1), 2),  # 28
    Part.Circle(App.Vector(-30.000793, 44.899359, 0), App.Vector(0, 0, 1), 2),  # 29
    Part.Circle(App.Vector(-10.534877, 52.962405, 0), App.Vector(0, 0, 1), 2),  # 30
    Part.Circle(App.Vector(10.534877, 52.962405, 0), App.Vector(0, 0, 1), 2),  # 31
], False)
sketch5.addConstraint([
    Sketcher.Constraint("Equal", 0, 1),
    Sketcher.Constraint("Equal", 1, 2),
    Sketcher.Constraint("Equal", 2, 3),
    Sketcher.Constraint("Equal", 3, 4),
    Sketcher.Constraint("Equal", 4, 5),
    Sketcher.Constraint("Equal", 5, 6),
    Sketcher.Constraint("Equal", 6, 7),
    Sketcher.Constraint("Equal", 7, 8),
    Sketcher.Constraint("Equal", 8, 9),
    Sketcher.Constraint("Equal", 9, 10),
    Sketcher.Constraint("Equal", 10, 11),
    Sketcher.Constraint("Equal", 11, 12),
    Sketcher.Constraint("Equal", 12, 13),
    Sketcher.Constraint("Equal", 13, 14),
    Sketcher.Constraint("Equal", 14, 15),
    Sketcher.Constraint("Equal", 16, 17),
    Sketcher.Constraint("Equal", 17, 18),
    Sketcher.Constraint("Equal", 18, 19),
    Sketcher.Constraint("Equal", 19, 20),
    Sketcher.Constraint("Equal", 20, 21),
    Sketcher.Constraint("Equal", 21, 22),
    Sketcher.Constraint("Equal", 22, 23),
    Sketcher.Constraint("Equal", 23, 24),
    Sketcher.Constraint("Equal", 24, 25),
    Sketcher.Constraint("Equal", 25, 26),
    Sketcher.Constraint("Equal", 26, 27),
    Sketcher.Constraint("Equal", 27, 28),
    Sketcher.Constraint("Equal", 28, 29),
    Sketcher.Constraint("Equal", 29, 30),
    Sketcher.Constraint("Equal", 30, 31),
    Sketcher.Constraint("Symmetric", 0, 3, 8, 3, -1, 1),
    Sketcher.Constraint("Symmetric", 1, 3, 9, 3, -1, 1),
    Sketcher.Constraint("Symmetric", 2, 3, 10, 3, -1, 1),
    Sketcher.Constraint("Symmetric", 3, 3, 11, 3, -1, 1),
    Sketcher.Constraint("Symmetric", 4, 3, 12, 3, -1, 1),
    Sketcher.Constraint("Symmetric", 5, 3, 13, 3, -1, 1),
    Sketcher.Constraint("Symmetric", 6, 3, 14, 3, -1, 1),
    Sketcher.Constraint("Symmetric", 7, 3, 15, 3, -1, 1),
    Sketcher.Constraint("Symmetric", 16, 3, 24, 3, -1, 1),
    Sketcher.Constraint("Symmetric", 17, 3, 25, 3, -1, 1),
    Sketcher.Constraint("Symmetric", 18, 3, 26, 3, -1, 1),
    Sketcher.Constraint("Symmetric", 19, 3, 27, 3, -1, 1),
    Sketcher.Constraint("Symmetric", 20, 3, 28, 3, -1, 1),
    Sketcher.Constraint("Symmetric", 21, 3, 29, 3, -1, 1),
    Sketcher.Constraint("Symmetric", 22, 3, 30, 3, -1, 1),
    Sketcher.Constraint("Symmetric", 23, 3, 31, 3, -1, 1),
    Sketcher.Constraint("Symmetric", 7, 3, 9, 3, -2),
    Sketcher.Constraint("Symmetric", 6, 3, 10, 3, -2),
    Sketcher.Constraint("Symmetric", 5, 3, 11, 3, -2),
    Sketcher.Constraint("Symmetric", 22, 3, 23, 3, -2),
    Sketcher.Constraint("Symmetric", 21, 3, 24, 3, -2),
    Sketcher.Constraint("Symmetric", 20, 3, 25, 3, -2),
    Sketcher.Constraint("Symmetric", 19, 3, 26, 3, -2),
    Sketcher.Constraint("PointOnObject", 0, 3, -2),
    Sketcher.Constraint("PointOnObject", 4, 3, -1),
    Sketcher.Constraint("Diameter", 0, Q("5 mm")),
    Sketcher.Constraint("Diameter", 16, Q("4 mm")),
    Sketcher.Constraint("DistanceY", -1, 1, 0, 3, Q("45 mm")),
    Sketcher.Constraint("DistanceX", -1, 1, 4, 3, Q("45 mm")),
    Sketcher.Constraint("DistanceX", 2, 3, 18, 3, Q("21.1426 mm")),
    Sketcher.Constraint("DistanceY", 22, 3, 6, 3, Q("21.1426 mm")),
    Sketcher.Constraint("DistanceY", -1, 1, 1, 3, Q("41.574579 mm")),
    Sketcher.Constraint("DistanceX", -1, 1, 3, 3, Q("41.574579 mm")),
    Sketcher.Constraint("DistanceY", -1, 1, 16, 3, Q("44.899359 mm")),
    Sketcher.Constraint("DistanceX", -1, 1, 17, 3, Q("44.899359 mm")),
    Sketcher.Constraint("DistanceX", 1, 3, 2, 3, Q("14.599051 mm")),
    Sketcher.Constraint("DistanceY", 3, 3, 2, 3, Q("14.599051 mm")),
    Sketcher.Constraint("DistanceY", 5, 3, 3, 3, Q("34.441509 mm")),
    Sketcher.Constraint("DistanceX", 9, 3, 7, 3, Q("34.441509 mm")),
    Sketcher.Constraint("DistanceX", 1, 3, 16, 3, Q("12.780038 mm")),
    Sketcher.Constraint("DistanceY", 3, 3, 17, 3, Q("12.780038 mm")),
    Sketcher.Constraint("DistanceY", 5, 3, 18, 3, Q("27.755632 mm")),
    Sketcher.Constraint("DistanceX", 9, 3, 22, 3, Q("27.755632 mm")),
])
sketch5.setExpression("Constraints[55]", "Params.sketch5_diameter")
sketch5.setExpression("Constraints[56]", "Params.sketch5_diameter2")
pocket2 = body.newObject("PartDesign::Pocket", "Pocket001")
pocket2.Profile = sketch5
pocket2.setExpression("Length", "Params.pocket2_length")
pocket2.Reversed = True

doc.recompute()
